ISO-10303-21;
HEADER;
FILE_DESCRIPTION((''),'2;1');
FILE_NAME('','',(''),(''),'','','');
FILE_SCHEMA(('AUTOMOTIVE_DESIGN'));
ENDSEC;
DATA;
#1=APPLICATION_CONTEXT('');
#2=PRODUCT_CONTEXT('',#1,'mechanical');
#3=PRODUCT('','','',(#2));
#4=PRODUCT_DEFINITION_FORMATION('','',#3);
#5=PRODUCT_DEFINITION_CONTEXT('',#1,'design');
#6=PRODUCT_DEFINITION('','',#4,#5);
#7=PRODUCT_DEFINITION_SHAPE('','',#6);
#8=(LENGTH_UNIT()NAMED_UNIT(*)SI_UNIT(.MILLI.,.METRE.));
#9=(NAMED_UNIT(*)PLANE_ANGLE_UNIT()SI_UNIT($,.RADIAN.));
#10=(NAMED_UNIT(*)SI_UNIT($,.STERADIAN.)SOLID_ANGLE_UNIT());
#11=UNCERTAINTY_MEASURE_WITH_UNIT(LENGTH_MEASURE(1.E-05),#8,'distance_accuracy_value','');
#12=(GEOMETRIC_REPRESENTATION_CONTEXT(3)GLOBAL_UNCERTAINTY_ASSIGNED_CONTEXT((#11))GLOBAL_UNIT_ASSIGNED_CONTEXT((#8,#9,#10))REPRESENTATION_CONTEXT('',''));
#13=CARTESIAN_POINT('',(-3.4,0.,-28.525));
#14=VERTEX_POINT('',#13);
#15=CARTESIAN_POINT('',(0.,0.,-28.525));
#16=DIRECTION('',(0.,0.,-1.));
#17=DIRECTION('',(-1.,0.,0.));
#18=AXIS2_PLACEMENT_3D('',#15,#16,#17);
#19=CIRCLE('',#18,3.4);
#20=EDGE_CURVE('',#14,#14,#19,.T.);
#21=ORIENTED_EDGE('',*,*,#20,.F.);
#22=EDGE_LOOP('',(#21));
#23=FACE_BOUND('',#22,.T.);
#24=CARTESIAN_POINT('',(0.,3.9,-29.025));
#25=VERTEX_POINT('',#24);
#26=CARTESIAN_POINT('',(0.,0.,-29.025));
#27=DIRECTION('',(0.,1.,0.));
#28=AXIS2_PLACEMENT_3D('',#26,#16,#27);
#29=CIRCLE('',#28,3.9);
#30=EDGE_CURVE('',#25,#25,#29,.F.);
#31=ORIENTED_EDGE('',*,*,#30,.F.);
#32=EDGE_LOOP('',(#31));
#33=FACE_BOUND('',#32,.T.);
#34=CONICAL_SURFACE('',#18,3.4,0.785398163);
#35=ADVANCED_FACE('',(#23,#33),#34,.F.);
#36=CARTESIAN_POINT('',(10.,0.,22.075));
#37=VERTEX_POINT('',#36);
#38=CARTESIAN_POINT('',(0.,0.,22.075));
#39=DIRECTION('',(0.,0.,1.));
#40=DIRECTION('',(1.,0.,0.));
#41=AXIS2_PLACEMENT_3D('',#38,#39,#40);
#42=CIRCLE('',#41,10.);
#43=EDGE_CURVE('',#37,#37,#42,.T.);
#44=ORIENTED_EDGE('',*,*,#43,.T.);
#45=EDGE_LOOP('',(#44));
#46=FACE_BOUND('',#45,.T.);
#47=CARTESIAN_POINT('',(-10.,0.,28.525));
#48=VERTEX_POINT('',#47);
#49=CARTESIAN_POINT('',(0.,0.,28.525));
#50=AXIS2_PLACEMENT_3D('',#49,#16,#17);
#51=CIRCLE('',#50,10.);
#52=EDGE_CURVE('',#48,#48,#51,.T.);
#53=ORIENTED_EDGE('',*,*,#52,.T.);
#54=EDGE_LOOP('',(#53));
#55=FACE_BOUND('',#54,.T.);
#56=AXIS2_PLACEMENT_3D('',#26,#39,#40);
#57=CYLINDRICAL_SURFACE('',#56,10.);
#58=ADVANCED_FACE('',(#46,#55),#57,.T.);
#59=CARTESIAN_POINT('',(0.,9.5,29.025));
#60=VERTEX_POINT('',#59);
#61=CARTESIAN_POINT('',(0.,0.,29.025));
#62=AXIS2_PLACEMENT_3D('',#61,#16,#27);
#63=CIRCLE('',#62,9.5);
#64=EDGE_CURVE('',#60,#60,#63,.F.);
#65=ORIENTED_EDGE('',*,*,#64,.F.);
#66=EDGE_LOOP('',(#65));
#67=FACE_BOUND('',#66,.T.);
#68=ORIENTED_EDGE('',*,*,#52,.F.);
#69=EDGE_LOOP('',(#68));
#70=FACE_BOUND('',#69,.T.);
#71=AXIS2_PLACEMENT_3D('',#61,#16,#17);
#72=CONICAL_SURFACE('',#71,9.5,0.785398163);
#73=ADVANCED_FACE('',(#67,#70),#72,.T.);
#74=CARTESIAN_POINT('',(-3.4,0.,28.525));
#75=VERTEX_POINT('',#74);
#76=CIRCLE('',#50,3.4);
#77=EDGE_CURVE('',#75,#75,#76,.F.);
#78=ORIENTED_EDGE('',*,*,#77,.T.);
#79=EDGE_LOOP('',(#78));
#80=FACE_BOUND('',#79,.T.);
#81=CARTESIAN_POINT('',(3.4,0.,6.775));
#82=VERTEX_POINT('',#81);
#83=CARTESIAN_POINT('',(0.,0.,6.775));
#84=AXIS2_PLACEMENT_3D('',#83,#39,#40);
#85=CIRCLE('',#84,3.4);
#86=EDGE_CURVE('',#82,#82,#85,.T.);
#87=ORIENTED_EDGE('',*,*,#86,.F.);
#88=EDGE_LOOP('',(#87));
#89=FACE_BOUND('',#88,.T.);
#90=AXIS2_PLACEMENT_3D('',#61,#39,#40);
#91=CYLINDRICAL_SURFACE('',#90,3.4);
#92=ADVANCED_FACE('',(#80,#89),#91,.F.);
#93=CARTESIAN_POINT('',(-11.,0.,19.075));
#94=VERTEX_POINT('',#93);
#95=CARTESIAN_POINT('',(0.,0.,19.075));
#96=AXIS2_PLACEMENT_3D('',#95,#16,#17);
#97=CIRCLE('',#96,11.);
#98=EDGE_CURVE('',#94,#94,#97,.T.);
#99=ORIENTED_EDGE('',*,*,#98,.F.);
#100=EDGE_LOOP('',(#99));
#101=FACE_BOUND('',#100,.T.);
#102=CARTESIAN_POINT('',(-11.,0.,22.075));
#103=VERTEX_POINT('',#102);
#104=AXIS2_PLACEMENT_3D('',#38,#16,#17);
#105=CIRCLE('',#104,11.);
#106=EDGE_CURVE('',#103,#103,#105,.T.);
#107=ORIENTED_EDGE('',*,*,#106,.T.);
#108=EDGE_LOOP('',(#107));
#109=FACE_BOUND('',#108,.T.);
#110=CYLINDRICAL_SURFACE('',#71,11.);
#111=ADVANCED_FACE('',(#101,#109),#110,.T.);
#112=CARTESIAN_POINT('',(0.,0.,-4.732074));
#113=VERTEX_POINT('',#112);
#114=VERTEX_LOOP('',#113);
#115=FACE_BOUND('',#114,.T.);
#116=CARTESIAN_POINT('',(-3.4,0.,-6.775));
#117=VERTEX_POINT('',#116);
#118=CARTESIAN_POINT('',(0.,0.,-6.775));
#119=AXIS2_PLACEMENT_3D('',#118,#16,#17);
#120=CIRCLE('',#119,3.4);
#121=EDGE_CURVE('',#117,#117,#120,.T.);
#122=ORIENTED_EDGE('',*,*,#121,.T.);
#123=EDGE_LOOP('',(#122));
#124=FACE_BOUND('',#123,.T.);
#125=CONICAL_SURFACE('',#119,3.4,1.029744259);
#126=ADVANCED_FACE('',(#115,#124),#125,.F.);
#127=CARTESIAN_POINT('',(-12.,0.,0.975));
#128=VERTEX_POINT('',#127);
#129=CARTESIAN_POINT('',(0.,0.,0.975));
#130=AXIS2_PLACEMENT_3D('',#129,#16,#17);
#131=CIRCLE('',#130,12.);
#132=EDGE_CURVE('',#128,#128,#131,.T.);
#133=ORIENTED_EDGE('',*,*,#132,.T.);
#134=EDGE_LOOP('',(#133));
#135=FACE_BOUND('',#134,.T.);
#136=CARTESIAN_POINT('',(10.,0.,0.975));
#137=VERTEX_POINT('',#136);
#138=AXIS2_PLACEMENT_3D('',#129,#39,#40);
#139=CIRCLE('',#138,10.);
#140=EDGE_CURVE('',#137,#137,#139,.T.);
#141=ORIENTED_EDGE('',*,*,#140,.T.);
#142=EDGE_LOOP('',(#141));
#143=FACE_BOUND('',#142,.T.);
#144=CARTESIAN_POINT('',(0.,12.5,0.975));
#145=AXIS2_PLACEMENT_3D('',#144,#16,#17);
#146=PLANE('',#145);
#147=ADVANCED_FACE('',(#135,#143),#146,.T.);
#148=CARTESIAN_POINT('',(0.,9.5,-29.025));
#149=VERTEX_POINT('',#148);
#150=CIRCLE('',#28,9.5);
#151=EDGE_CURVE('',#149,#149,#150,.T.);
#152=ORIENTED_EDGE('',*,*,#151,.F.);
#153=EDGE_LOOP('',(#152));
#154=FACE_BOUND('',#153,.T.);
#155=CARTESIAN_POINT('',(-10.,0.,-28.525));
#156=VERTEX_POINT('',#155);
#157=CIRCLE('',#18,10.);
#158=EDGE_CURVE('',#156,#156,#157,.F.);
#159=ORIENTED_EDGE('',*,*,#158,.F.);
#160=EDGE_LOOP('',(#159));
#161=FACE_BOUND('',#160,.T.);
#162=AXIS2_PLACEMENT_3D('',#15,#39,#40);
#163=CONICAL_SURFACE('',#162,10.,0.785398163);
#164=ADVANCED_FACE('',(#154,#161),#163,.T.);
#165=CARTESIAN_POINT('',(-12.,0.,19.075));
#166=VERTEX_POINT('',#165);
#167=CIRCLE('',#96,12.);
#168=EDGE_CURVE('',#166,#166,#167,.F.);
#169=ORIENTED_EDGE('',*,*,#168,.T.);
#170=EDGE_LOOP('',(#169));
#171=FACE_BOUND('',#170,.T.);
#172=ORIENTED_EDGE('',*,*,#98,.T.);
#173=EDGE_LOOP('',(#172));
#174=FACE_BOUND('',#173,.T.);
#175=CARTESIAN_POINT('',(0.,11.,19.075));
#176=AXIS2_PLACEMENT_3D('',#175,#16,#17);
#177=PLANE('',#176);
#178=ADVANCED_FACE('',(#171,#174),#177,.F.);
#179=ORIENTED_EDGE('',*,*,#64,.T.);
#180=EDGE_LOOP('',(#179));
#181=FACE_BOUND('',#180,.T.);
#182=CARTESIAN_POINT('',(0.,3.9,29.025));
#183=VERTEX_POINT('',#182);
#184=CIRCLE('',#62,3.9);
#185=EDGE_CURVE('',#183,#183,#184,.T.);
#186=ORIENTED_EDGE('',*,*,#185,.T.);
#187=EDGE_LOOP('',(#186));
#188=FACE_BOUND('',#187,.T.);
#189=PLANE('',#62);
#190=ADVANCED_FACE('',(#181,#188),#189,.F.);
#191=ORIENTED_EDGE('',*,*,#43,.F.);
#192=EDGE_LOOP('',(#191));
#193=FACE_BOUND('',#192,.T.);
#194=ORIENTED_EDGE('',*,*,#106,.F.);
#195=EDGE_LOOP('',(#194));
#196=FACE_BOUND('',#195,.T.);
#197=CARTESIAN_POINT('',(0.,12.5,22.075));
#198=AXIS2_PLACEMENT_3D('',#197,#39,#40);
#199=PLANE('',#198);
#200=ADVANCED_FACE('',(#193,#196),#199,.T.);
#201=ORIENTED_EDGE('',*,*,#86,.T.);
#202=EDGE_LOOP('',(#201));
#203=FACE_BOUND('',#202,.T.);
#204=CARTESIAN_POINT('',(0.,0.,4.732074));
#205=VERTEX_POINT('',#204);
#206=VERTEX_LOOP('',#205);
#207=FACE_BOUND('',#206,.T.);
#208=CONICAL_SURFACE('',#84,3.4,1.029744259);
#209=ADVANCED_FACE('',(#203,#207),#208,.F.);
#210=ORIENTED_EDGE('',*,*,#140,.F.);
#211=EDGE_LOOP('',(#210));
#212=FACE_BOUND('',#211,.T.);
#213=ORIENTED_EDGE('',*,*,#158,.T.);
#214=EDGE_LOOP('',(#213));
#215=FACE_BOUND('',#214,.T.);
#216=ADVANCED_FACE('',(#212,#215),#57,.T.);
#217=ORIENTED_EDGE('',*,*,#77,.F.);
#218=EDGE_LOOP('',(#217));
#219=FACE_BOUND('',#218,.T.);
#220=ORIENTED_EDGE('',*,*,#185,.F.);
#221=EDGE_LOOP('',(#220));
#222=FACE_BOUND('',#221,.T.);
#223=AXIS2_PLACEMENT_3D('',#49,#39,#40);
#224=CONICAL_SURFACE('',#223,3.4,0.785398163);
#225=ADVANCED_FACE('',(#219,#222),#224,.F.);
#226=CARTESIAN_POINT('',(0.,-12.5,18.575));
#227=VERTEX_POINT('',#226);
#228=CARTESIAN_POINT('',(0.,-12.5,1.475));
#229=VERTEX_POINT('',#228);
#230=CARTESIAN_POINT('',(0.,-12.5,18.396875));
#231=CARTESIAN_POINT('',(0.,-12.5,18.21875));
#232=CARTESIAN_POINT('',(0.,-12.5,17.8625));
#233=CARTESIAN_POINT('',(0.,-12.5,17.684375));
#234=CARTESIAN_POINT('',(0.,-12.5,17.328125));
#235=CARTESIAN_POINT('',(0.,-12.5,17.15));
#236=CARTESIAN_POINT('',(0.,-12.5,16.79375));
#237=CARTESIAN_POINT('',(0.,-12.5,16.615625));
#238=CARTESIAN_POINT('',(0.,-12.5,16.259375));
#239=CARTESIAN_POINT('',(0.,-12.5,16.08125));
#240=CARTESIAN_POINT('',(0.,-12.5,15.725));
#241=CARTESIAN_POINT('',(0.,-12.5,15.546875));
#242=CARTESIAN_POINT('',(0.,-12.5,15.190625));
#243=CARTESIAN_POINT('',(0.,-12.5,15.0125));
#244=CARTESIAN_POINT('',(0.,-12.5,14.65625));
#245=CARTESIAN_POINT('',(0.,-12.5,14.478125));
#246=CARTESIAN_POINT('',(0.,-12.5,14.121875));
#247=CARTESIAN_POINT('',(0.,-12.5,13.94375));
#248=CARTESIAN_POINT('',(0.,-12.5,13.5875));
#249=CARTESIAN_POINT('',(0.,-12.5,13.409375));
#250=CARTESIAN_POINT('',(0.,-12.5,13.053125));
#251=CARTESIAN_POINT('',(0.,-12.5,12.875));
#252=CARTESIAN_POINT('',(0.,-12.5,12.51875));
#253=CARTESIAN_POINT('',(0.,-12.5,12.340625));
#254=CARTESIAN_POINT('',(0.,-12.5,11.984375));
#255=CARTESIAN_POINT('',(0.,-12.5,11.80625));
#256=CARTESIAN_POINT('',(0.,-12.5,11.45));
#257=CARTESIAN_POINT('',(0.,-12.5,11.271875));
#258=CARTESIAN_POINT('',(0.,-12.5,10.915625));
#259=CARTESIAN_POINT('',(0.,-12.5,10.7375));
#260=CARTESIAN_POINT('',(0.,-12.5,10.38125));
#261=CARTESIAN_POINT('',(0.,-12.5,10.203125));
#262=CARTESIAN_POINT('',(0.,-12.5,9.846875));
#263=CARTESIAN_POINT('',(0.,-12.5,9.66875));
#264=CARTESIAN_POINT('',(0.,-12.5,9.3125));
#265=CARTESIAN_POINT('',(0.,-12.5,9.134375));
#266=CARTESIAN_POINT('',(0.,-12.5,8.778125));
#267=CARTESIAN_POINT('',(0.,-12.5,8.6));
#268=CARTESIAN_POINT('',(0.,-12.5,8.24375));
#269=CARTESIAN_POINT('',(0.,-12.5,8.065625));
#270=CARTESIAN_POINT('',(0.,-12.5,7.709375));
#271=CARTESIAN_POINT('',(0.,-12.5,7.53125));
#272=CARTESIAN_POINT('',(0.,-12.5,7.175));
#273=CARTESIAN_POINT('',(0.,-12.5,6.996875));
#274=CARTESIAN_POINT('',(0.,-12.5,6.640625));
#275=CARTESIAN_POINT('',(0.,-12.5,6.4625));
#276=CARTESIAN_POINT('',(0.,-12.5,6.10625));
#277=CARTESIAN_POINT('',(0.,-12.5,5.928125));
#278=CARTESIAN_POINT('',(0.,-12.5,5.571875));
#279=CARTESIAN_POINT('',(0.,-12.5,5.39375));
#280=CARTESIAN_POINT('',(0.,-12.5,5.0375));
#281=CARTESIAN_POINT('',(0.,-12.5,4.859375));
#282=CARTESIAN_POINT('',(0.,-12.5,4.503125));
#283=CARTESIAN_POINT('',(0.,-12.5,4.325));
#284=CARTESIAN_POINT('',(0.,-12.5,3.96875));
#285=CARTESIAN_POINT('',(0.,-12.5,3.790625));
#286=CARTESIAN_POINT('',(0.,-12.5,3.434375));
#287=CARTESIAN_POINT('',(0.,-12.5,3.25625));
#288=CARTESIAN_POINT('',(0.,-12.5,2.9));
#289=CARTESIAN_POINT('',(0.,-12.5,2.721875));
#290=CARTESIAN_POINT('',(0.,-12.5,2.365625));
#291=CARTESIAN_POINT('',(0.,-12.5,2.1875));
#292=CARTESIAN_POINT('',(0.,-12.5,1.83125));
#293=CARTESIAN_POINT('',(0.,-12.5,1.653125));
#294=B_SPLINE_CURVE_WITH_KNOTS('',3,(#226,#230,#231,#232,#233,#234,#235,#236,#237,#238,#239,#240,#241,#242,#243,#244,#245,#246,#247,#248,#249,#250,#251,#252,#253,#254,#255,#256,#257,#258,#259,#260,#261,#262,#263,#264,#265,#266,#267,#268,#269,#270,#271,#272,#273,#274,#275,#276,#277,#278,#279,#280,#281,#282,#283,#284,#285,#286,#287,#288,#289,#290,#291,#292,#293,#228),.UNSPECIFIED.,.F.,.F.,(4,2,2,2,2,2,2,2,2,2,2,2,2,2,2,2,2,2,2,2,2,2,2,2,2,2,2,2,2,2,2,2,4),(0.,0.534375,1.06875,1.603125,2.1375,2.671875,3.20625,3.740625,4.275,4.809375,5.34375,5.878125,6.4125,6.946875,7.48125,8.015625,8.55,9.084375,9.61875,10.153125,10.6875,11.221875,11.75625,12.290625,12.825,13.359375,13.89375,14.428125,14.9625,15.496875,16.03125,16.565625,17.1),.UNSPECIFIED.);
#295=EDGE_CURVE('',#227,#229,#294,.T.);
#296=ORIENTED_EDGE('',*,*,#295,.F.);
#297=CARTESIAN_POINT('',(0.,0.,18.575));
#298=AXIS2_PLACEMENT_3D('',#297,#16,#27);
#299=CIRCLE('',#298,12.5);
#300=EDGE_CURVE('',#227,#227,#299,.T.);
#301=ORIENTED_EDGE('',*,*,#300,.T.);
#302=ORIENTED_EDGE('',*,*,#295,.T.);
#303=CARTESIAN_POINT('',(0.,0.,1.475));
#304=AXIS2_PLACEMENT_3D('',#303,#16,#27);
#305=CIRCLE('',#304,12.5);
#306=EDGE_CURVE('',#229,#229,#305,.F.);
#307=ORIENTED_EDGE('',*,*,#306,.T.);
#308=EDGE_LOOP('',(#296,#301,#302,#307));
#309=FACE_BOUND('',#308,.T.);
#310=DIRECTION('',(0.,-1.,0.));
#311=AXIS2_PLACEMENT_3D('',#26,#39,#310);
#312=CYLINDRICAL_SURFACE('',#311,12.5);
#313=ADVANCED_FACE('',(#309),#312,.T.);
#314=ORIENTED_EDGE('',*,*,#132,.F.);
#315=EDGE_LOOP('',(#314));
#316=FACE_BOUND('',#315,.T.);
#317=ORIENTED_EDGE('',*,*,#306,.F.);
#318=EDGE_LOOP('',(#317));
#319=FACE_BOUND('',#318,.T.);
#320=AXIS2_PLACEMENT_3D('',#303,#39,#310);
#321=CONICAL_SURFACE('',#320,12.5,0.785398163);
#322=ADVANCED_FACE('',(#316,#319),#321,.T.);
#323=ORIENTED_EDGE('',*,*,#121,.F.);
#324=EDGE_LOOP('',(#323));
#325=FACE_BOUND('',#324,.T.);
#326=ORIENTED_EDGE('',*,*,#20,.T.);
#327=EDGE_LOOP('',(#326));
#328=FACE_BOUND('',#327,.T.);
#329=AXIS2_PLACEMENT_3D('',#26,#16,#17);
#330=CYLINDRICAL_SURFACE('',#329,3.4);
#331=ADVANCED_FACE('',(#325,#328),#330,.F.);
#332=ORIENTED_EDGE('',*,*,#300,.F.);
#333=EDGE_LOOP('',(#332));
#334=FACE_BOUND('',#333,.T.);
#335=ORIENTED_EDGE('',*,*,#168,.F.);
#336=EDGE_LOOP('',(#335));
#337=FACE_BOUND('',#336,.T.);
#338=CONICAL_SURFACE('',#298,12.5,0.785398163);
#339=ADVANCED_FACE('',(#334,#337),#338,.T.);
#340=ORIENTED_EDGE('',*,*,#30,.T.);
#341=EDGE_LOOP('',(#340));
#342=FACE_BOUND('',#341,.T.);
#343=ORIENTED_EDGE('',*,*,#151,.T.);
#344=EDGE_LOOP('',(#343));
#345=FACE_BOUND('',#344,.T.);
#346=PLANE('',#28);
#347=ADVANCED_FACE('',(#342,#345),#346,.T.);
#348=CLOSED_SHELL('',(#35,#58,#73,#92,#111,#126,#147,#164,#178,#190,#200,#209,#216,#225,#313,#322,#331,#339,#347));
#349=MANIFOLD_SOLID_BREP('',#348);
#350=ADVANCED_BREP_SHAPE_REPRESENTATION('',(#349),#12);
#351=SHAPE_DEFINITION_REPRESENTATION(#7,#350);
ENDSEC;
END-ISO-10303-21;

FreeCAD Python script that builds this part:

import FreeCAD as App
import Part
import Sketcher

V = App.Vector
Q = App.Units.Quantity


def edges_at(feature, points):
    """Names of the edges that pass closest to the given points."""
    edges = feature.Shape.Edges
    near = lambda p: min(range(len(edges)), key=lambda i: edges[i].distToShape(Part.Vertex(*p))[0])
    return sorted({f"Edge{near(p) + 1}" for p in points})

doc = App.newDocument("Part")
body = doc.addObject("PartDesign::Body", "Body")

# Sketch on XY plane
sketch1 = body.newObject("Sketcher::SketchObject", "Sketch")
sketch1.AttachmentSupport = (doc.getObject("XY_Plane"), [""])
sketch1.MapMode = "FlatFace"
sketch1.AttachmentOffset = App.Placement(V(0, 0, 29.025), App.Rotation())
sketch1.addGeometry(Part.Circle(V(0, 0, 0), V(0, 0, 1), 12.5), False)
sketch1.addConstraint(Sketcher.Constraint("Coincident", 0, 3, -1, 1))
sketch1.addConstraint(Sketcher.Constraint("Diameter", 0, 25.0))
pad1 = body.newObject("PartDesign::Pad", "Pad")
pad1.Profile = sketch1
pad1.Length = 58.05
pad1.Reversed = True

# Sketch on YZ plane
sketch2 = body.newObject("Sketcher::SketchObject", "Sketch001")
sketch2.AttachmentSupport = (doc.getObject("YZ_Plane"), [""])
sketch2.MapMode = "FlatFace"
sketch2.addGeometry(Part.LineSegment(V(12.5, 0.975, 0), V(10, 0.975, 0)), False)
sketch2.addGeometry(Part.LineSegment(V(10, 0.975, 0), V(10, -29.025, 0)), False)
sketch2.addGeometry(Part.LineSegment(V(10, -29.025, 0), V(12.5, -29.025, 0)), False)
sketch2.addGeometry(Part.LineSegment(V(12.5, -29.025, 0), V(12.5, 0.975, 0)), False)
sketch2.addGeometry(Part.LineSegment(V(12.5, 29.025, 0), V(10, 29.025, 0)), False)
sketch2.addGeometry(Part.LineSegment(V(10, 29.025, 0), V(10, 22.075, 0)), False)
sketch2.addGeometry(Part.LineSegment(V(10, 22.075, 0), V(12.5, 22.075, 0)), False)
sketch2.addGeometry(Part.LineSegment(V(12.5, 22.075, 0), V(12.5, 29.025, 0)), False)
sketch2.addConstraint(Sketcher.Constraint("Coincident", 0, 2, 1, 1))
sketch2.addConstraint(Sketcher.Constraint("Coincident", 1, 2, 2, 1))
sketch2.addConstraint(Sketcher.Constraint("Coincident", 2, 2, 3, 1))
sketch2.addConstraint(Sketcher.Constraint("Coincident", 3, 2, 0, 1))
sketch2.addConstraint(Sketcher.Constraint("Coincident", 4, 2, 5, 1))
sketch2.addConstraint(Sketcher.Constraint("Coincident", 5, 2, 6, 1))
sketch2.addConstraint(Sketcher.Constraint("Coincident", 6, 2, 7, 1))
sketch2.addConstraint(Sketcher.Constraint("Coincident", 7, 2, 4, 1))
sketch2.addConstraint(Sketcher.Constraint("Horizontal", 0))
sketch2.addConstraint(Sketcher.Constraint("Vertical", 1))
sketch2.addConstraint(Sketcher.Constraint("Horizontal", 2))
sketch2.addConstraint(Sketcher.Constraint("Vertical", 3))
sketch2.addConstraint(Sketcher.Constraint("Horizontal", 4))
sketch2.addConstraint(Sketcher.Constraint("Vertical", 5))
sketch2.addConstraint(Sketcher.Constraint("Horizontal", 6))
sketch2.addConstraint(Sketcher.Constraint("Vertical", 7))
sketch2.addConstraint(Sketcher.Constraint("Symmetric", 1, 2, 4, 2, -1))
sketch2.addConstraint(Sketcher.Constraint("Vertical", 3, 2, 6, 2))
sketch2.addConstraint(Sketcher.Constraint("DistanceY", 1, 2, 1, 1, 30.0))
sketch2.addConstraint(Sketcher.Constraint("DistanceX", 0, 2, 0, 1, 2.5))
sketch2.addConstraint(Sketcher.Constraint("DistanceX", -1, 1, 0, 2, 10.0))
sketch2.addConstraint(Sketcher.Constraint("DistanceY", 5, 2, 5, 1, 6.95))
sketch2.addConstraint(Sketcher.Constraint("DistanceY", 0, 2, 5, 2, 21.1))
groove = body.newObject("PartDesign::Groove", "Groove")
groove.Profile = sketch2
groove.ReferenceAxis = (sketch2, ["V_Axis"])
groove.Angle = 360

# Sketch on YZ plane
sketch3 = body.newObject("Sketcher::SketchObject", "Sketch002")
sketch3.AttachmentSupport = (doc.getObject("YZ_Plane"), [""])
sketch3.MapMode = "FlatFace"
sketch3.addGeometry(Part.LineSegment(V(0, 4.732074, 0), V(0, 29.025, 0)), False)
sketch3.addGeometry(Part.LineSegment(V(0, 29.025, 0), V(-3.4, 29.025, 0)), False)
sketch3.addGeometry(Part.LineSegment(V(-3.4, 29.025, 0), V(-3.4, 6.775, 0)), False)
sketch3.addGeometry(Part.LineSegment(V(-3.4, 6.775, 0), V(0, 4.732074, 0)), False)
sketch3.addConstraint(Sketcher.Constraint("Coincident", 0, 2, 1, 1))
sketch3.addConstraint(Sketcher.Constraint("Coincident", 1, 2, 2, 1))
sketch3.addConstraint(Sketcher.Constraint("Coincident", 2, 2, 3, 1))
sketch3.addConstraint(Sketcher.Constraint("Coincident", 3, 2, 0, 1))
sketch3.addConstraint(Sketcher.Constraint("Vertical", 0))
sketch3.addConstraint(Sketcher.Constraint("Horizontal", 1))
sketch3.addConstraint(Sketcher.Constraint("Vertical", 2))
sketch3.addConstraint(Sketcher.Constraint("PointOnObject", 0, 2, -2))
sketch3.addConstraint(Sketcher.Constraint("Angle", 3, Q("-31 deg")))
sketch3.addConstraint(Sketcher.Constraint("DistanceX", 1, 2, 1, 1, 3.4))
sketch3.addConstraint(Sketcher.Constraint("DistanceY", 2, 2, 2, 1, 22.25))
sketch3.addConstraint(Sketcher.Constraint("DistanceY", -1, 1, 0, 2, 29.025))
groove2 = body.newObject("PartDesign::Groove", "Groove001")
groove2.Profile = sketch3
groove2.ReferenceAxis = (sketch3, ["V_Axis"])
groove2.Angle = 360
doc.recompute()

mirrored = body.newObject("PartDesign::Mirrored", "Mirrored")
mirrored.Originals = [groove2]
mirrored.MirrorPlane = (doc.getObject("XY_Plane"), [""])
body.Tip = mirrored
doc.recompute()

chamfer = body.newObject("PartDesign::Chamfer", "Chamfer")
chamfer.Base = (mirrored, edges_at(mirrored, [
    (-10, 0, 29.025),
    (0, 3.4, 29.025),
    (0, 3.4, -29.025),
    (-10, 0, -29.025),
    (0, -12.5, 0.975),
]))
chamfer.Size = 0.5
doc.recompute()

chamfer2 = body.newObject("PartDesign::Chamfer", "Chamfer001")
chamfer2.Base = (chamfer, edges_at(chamfer, [(0, -12.5, 22.075)]))
chamfer2.Size = 1.5

# Sketch on YZ plane
sketch4 = body.newObject("Sketcher::SketchObject", "Sketch003")
sketch4.AttachmentSupport = (doc.getObject("YZ_Plane"), [""])
sketch4.MapMode = "FlatFace"
sketch4.addGeometry(Part.LineSegment(V(12.5, 22.075, 0), V(11, 22.075, 0)), False)
sketch4.addGeometry(Part.LineSegment(V(11, 22.075, 0), V(11, 19.075, 0)), False)
sketch4.addGeometry(Part.LineSegment(V(11, 19.075, 0), V(12.5, 19.075, 0)), False)
sketch4.addGeometry(Part.LineSegment(V(12.5, 19.075, 0), V(12.5, 22.075, 0)), False)
sketch4.addConstraint(Sketcher.Constraint("Coincident", 0, 2, 1, 1))
sketch4.addConstraint(Sketcher.Constraint("Coincident", 1, 2, 2, 1))
sketch4.addConstraint(Sketcher.Constraint("Coincident", 2, 2, 3, 1))
sketch4.addConstraint(Sketcher.Constraint("Coincident", 3, 2, 0, 1))
sketch4.addConstraint(Sketcher.Constraint("Horizontal", 0))
sketch4.addConstraint(Sketcher.Constraint("Vertical", 1))
sketch4.addConstraint(Sketcher.Constraint("Horizontal", 2))
sketch4.addConstraint(Sketcher.Constraint("Vertical", 3))
sketch4.addConstraint(Sketcher.Constraint("DistanceY", 1, 2, 1, 1, 3.0))
sketch4.addConstraint(Sketcher.Constraint("DistanceX", 0, 2, 0, 1, 1.5))
sketch4.addConstraint(Sketcher.Constraint("DistanceX", -1, 1, 0, 2, 11.0))
sketch4.addConstraint(Sketcher.Constraint("DistanceY", -1, 1, 0, 2, 22.075))
groove3 = body.newObject("PartDesign::Groove", "Groove002")
groove3.Profile = sketch4
groove3.ReferenceAxis = (sketch4, ["V_Axis"])
groove3.Angle = 360
doc.recompute()

chamfer3 = body.newObject("PartDesign::Chamfer", "Chamfer002")
chamfer3.Base = (groove3, edges_at(groove3, [(0, -12.5, 19.075)]))
chamfer3.Size = 0.5

doc.recompute()
